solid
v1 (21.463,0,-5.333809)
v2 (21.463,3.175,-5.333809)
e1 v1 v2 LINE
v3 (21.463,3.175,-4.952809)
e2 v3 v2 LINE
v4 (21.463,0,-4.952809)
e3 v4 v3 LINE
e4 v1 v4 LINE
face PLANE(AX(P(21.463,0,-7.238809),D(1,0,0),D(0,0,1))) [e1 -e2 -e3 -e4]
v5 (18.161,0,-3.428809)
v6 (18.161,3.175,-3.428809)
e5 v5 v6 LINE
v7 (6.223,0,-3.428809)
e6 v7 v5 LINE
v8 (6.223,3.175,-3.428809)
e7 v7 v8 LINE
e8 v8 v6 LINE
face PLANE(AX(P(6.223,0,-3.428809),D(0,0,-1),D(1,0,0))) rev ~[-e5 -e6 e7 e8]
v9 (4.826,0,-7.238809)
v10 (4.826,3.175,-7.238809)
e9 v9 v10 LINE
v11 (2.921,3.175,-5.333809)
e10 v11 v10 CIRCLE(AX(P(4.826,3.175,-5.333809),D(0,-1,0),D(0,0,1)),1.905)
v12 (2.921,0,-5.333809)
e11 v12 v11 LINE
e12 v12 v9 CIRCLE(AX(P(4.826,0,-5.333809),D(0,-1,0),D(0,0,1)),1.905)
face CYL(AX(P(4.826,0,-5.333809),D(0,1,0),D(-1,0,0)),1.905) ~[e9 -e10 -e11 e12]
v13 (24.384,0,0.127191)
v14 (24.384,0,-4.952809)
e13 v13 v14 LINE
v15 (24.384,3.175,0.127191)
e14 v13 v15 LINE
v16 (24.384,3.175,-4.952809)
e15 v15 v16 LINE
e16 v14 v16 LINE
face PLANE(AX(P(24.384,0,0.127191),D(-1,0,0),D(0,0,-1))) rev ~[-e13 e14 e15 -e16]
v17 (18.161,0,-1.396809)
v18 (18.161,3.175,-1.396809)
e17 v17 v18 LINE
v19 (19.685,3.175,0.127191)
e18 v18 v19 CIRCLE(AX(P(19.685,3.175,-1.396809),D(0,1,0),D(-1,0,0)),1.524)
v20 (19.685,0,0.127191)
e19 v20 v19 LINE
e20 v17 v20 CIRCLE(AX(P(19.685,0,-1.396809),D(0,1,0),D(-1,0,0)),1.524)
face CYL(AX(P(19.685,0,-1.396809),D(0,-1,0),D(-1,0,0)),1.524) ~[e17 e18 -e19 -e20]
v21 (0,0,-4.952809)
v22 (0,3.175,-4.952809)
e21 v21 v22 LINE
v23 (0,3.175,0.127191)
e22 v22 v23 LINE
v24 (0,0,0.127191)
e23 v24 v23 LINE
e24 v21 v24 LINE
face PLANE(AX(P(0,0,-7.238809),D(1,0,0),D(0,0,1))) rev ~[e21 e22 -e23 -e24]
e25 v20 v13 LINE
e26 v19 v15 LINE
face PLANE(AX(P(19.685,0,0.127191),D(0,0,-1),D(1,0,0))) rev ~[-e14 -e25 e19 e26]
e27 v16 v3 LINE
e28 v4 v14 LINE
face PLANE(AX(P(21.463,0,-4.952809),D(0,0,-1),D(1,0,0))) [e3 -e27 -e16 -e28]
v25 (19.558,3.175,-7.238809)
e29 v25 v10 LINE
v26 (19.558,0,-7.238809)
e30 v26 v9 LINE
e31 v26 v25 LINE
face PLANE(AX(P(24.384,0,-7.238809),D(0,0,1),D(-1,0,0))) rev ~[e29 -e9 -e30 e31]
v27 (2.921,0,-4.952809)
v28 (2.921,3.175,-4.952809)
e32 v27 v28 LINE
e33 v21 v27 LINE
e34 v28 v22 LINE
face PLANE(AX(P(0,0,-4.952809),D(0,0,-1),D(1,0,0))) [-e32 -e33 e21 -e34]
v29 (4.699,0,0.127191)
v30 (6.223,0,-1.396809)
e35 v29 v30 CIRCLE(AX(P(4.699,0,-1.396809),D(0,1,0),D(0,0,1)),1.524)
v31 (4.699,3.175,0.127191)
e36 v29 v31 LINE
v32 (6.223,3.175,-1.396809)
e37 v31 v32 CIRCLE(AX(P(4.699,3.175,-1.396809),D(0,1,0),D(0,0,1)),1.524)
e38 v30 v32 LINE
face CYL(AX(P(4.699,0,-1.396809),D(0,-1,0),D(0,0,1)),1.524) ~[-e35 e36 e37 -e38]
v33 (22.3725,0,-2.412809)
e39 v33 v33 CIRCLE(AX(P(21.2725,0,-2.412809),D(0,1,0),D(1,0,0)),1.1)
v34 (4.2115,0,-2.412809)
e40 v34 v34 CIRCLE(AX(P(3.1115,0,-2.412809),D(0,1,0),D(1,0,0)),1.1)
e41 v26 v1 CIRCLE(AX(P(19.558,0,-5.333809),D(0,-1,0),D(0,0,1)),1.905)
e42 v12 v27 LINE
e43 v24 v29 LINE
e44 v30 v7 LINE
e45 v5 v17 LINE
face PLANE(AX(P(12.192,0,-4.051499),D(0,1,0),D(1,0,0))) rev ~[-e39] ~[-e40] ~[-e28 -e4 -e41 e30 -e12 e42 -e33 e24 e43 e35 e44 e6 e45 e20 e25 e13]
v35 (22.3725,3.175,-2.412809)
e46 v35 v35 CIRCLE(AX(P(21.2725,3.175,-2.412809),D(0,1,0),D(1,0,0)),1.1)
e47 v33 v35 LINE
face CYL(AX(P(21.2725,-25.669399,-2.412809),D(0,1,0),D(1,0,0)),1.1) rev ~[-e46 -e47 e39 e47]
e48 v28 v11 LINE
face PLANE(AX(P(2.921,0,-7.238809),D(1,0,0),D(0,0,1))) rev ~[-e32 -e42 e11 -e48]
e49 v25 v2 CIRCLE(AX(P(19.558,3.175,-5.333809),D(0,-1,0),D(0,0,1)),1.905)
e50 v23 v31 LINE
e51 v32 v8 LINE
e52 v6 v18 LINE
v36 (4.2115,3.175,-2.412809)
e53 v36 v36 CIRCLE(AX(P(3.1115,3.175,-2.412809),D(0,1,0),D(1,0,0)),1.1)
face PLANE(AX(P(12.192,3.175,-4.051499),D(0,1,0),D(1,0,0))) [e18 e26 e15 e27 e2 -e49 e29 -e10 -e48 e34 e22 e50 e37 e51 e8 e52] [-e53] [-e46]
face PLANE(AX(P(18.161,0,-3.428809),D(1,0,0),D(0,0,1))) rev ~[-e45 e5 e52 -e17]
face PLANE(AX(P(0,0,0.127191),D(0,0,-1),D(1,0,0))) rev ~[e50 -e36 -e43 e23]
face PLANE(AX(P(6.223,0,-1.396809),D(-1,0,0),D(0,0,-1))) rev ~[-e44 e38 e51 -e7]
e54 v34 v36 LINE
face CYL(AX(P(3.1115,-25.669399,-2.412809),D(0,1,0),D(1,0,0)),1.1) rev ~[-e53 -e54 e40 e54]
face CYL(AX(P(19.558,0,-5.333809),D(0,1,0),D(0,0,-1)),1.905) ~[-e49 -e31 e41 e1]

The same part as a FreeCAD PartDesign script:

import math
import FreeCAD as App
import Part
import Sketcher

V = App.Vector
Q = App.Units.Quantity


def edges_at(feature, points):
    """Names of the edges that pass closest to the given points."""
    edges = feature.Shape.Edges
    near = lambda p: min(range(len(edges)), key=lambda i: edges[i].distToShape(Part.Vertex(*p))[0])
    return sorted({f"Edge{near(p) + 1}" for p in points})


def add_polygon(sketch, points):
    """Adds a closed chain of lines whose ends are joined by coincident constraints."""
    first, n = sketch.GeometryCount, len(points)
    for a, b in zip(points, points[1:] + points[:1]):
        sketch.addGeometry(Part.LineSegment(App.Vector(*a, 0), App.Vector(*b, 0)), False)
    for i in range(n):
        sketch.addConstraint(Sketcher.Constraint("Coincident", first + i, 2, first + (i + 1) % n, 1))

doc = App.newDocument("Part")
params = doc.addObject("Spreadsheet::Sheet", "Params")
for row, (alias, value) in enumerate([
    ("sketch1_radius", "0.06 in"),
    ("sketch1_width", "0.47 in"),
    ("sketch1_width2", "0.96 in"),
    ("sketch1_height", "0.08 in"),
    ("sketch1_height2", "0.29 in"),
    ("pad1_length", "0.125 in"),
    ("hole_diameter", "2.2 mm"),
    ("sketch3_height", "0.09 in"),
    ("sketch3_width", "0.115 in"),
    ("fillet_radius", "0.075 in"),
], start=1):
    params.set(f"A{row}", alias)
    params.set(f"B{row}", "=" + value)
    params.setAlias(f"B{row}", alias)

body = doc.addObject("PartDesign::Body", "Body")

sketch1 = doc.addObject("Sketcher::SketchObject", "Sketch")
body.addObject(sketch1)
sketch1.AttachmentSupport = (doc.XZ_Plane, [""])
sketch1.MapMode = "FlatFace"
sketch1.addGeometry(Part.LineSegment(V(0, 0.1, 0), V(4.7, 0.1, 0)), False)
sketch1.addGeometry(Part.ArcOfCircle(Part.Circle(V(4.7, -1.4, 0), V(0, 0, 1), 1.5), math.radians(0), math.radians(90)), False)
sketch1.addGeometry(Part.LineSegment(V(6.2, -1.4, 0), V(6.2, -3.4, 0)), False)
sketch1.addGeometry(Part.LineSegment(V(6.2, -3.4, 0), V(18.2, -3.4, 0)), False)
sketch1.addGeometry(Part.LineSegment(V(18.2, -3.4, 0), V(18.2, -1.4, 0)), False)
sketch1.addGeometry(Part.ArcOfCircle(Part.Circle(V(19.7, -1.4, 0), V(0, 0, 1), 1.5), math.radians(90), math.radians(180)), False)
sketch1.addGeometry(Part.LineSegment(V(19.7, 0.1, 0), V(24.4, 0.1, 0)), False)
sketch1.addGeometry(Part.LineSegment(V(24.4, 0.1, 0), V(24.4, -7.2, 0)), False)
sketch1.addGeometry(Part.LineSegment(V(24.4, -7.2, 0), V(0, -7.2, 0)), False)
sketch1.addGeometry(Part.LineSegment(V(0, -7.2, 0), V(0, 0.1, 0)), False)
sketch1.addConstraint(Sketcher.Constraint("Tangent", 0, 2, 1, 2))
sketch1.addConstraint(Sketcher.Constraint("Tangent", 1, 1, 2, 1))
sketch1.addConstraint(Sketcher.Constraint("Coincident", 2, 2, 3, 1))
sketch1.addConstraint(Sketcher.Constraint("Coincident", 3, 2, 4, 1))
sketch1.addConstraint(Sketcher.Constraint("Tangent", 4, 2, 5, 2))
sketch1.addConstraint(Sketcher.Constraint("Tangent", 5, 1, 6, 1))
sketch1.addConstraint(Sketcher.Constraint("Coincident", 6, 2, 7, 1))
sketch1.addConstraint(Sketcher.Constraint("Coincident", 7, 2, 8, 1))
sketch1.addConstraint(Sketcher.Constraint("Coincident", 8, 2, 9, 1))
sketch1.addConstraint(Sketcher.Constraint("Coincident", 9, 2, 0, 1))
sketch1.addConstraint(Sketcher.Constraint("Horizontal", 0))
sketch1.addConstraint(Sketcher.Constraint("Vertical", 2))
sketch1.addConstraint(Sketcher.Constraint("Horizontal", 3))
sketch1.addConstraint(Sketcher.Constraint("Vertical", 4))
sketch1.addConstraint(Sketcher.Constraint("Horizontal", 6))
sketch1.addConstraint(Sketcher.Constraint("Vertical", 7))
sketch1.addConstraint(Sketcher.Constraint("Horizontal", 8))
sketch1.addConstraint(Sketcher.Constraint("Vertical", 9))
sketch1.addConstraint(Sketcher.Constraint("Equal", 1, 5))
sketch1.addConstraint(Sketcher.Constraint("PointOnObject", 8, 2, -2))
sketch1.addConstraint(Sketcher.Constraint("Horizontal", 1, 3, 5, 3))
sketch1.addConstraint(Sketcher.Constraint("Equal", 0, 6))
sketch1.addConstraint(Sketcher.Constraint("Radius", 1, Q("0.06 in")))
sketch1.addConstraint(Sketcher.Constraint("DistanceX", 3, 1, 3, 2, Q("0.47 in")))
sketch1.addConstraint(Sketcher.Constraint("DistanceX", 8, 2, 8, 1, Q("0.96 in")))
sketch1.addConstraint(Sketcher.Constraint("DistanceY", 2, 2, 2, 1, Q("0.08 in")))
sketch1.addConstraint(Sketcher.Constraint("DistanceY", 7, 2, 7, 1, Q("0.29 in")))
sketch1.addConstraint(Sketcher.Constraint("DistanceY", 1, 3, -1, 1, 1.396809))
sketch1.setExpression("Constraints[22]", "Params.sketch1_radius")
sketch1.setExpression("Constraints[23]", "Params.sketch1_width")
sketch1.setExpression("Constraints[24]", "Params.sketch1_width2")
sketch1.setExpression("Constraints[25]", "Params.sketch1_height")
sketch1.setExpression("Constraints[26]", "Params.sketch1_height2")
pad1 = doc.addObject("PartDesign::Pad", "Pad")
body.addObject(pad1)
pad1.Profile = sketch1
pad1.setExpression("Length", "Params.pad1_length")
pad1.Reversed = True

sketch2 = doc.addObject("Sketcher::SketchObject", "Sketch001")
body.addObject(sketch2)
sketch2.AttachmentSupport = (doc.XZ_Plane, [""])
sketch2.MapMode = "FlatFace"
sketch2.addGeometry(Part.Circle(V(3.1, -2.4, 0), V(0, 0, 1), 1.1), False)
sketch2.addGeometry(Part.Circle(V(21.3, -2.4, 0), V(0, 0, 1), 1.1), False)
sketch2.addConstraint(Sketcher.Constraint("Equal", 0, 1))
sketch2.addConstraint(Sketcher.Constraint("Horizontal", 0, 3, 1, 3))
sketch2.addConstraint(Sketcher.Constraint("Diameter", 0, 2.2))
sketch2.addConstraint(Sketcher.Constraint("DistanceX", 0, 3, 1, 3, Q("0.715 in")))
sketch2.addConstraint(Sketcher.Constraint("DistanceX", -1, 1, 0, 3, Q("0.1225 in")))
sketch2.addConstraint(Sketcher.Constraint("DistanceY", 0, 3, -1, 1, 2.412809))
doc.recompute()
hole = doc.addObject("PartDesign::Hole", "Hole")
body.addObject(hole)
hole.Profile = sketch2
hole.ThreadType = "None"
hole.setExpression("Diameter", "Params.hole_diameter")
hole.DepthType = "ThroughAll"

sketch3 = doc.addObject("Sketcher::SketchObject", "Sketch002")
body.addObject(sketch3)
sketch3.AttachmentSupport = (doc.XZ_Plane, [""])
sketch3.MapMode = "FlatFace"
add_polygon(sketch3, [(21.5, -5), (21.5, -7.2), (24.4, -7.2), (24.4, -5)])
add_polygon(sketch3, [(0, -5), (0, -7.2), (2.9, -7.2), (2.9, -5)])
sketch3.addConstraint(Sketcher.Constraint("Vertical", 0))
sketch3.addConstraint(Sketcher.Constraint("Horizontal", 1))
sketch3.addConstraint(Sketcher.Constraint("Vertical", 2))
sketch3.addConstraint(Sketcher.Constraint("Horizontal", 3))
sketch3.addConstraint(Sketcher.Constraint("Vertical", 4))
sketch3.addConstraint(Sketcher.Constraint("Horizontal", 5))
sketch3.addConstraint(Sketcher.Constraint("Vertical", 6))
sketch3.addConstraint(Sketcher.Constraint("Horizontal", 7))
sketch3.addConstraint(Sketcher.Constraint("PointOnObject", 4, 2, -2))
sketch3.addConstraint(Sketcher.Constraint("Horizontal", 1, 2, 4, 2))
sketch3.addConstraint(Sketcher.Constraint("Horizontal", 3, 2, 6, 2))
sketch3.addConstraint(Sketcher.Constraint("Equal", 3, 5))
sketch3.addConstraint(Sketcher.Constraint("DistanceY", 0, 2, 0, 1, Q("0.09 in")))
sketch3.addConstraint(Sketcher.Constraint("DistanceX", 1, 1, 1, 2, Q("0.115 in")))
sketch3.addConstraint(Sketcher.Constraint("DistanceX", -1, 1, 1, 2, Q("0.96 in")))
sketch3.addConstraint(Sketcher.Constraint("DistanceY", 0, 2, -1, 1, 7.238809))
sketch3.setExpression("Constraints[20]", "Params.sketch3_height")
sketch3.setExpression("Constraints[21]", "Params.sketch3_width")
pocket1 = doc.addObject("PartDesign::Pocket", "Pocket")
body.addObject(pocket1)
pocket1.Profile = sketch3
pocket1.Type = "ThroughAll"
doc.recompute()

fillet = doc.addObject("PartDesign::Fillet", "Fillet")
body.addObject(fillet)
fillet.Base = (pocket1, edges_at(pocket1, [(21.463, 1.587, -7.239), (2.921, 1.587, -7.239)]))
fillet.setExpression("Radius", "Params.fillet_radius")

doc.recompute()
